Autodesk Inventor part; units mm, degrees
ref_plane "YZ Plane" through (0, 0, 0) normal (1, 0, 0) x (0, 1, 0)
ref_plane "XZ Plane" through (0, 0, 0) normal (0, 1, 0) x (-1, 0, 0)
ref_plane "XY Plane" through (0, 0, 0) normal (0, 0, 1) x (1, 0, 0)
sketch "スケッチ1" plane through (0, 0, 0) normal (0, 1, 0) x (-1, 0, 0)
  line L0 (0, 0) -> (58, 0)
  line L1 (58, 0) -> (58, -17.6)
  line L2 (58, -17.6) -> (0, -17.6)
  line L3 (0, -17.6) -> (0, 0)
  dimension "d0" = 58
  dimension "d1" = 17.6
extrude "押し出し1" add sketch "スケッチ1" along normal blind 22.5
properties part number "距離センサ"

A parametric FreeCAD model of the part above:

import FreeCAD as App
import Part
import Sketcher

V = App.Vector
Q = App.Units.Quantity


def add_polygon(sketch, points):
    """Adds a closed chain of lines whose ends are joined by coincident constraints."""
    first, n = sketch.GeometryCount, len(points)
    for a, b in zip(points, points[1:] + points[:1]):
        sketch.addGeometry(Part.LineSegment(App.Vector(*a, 0), App.Vector(*b, 0)), False)
    for i in range(n):
        sketch.addConstraint(Sketcher.Constraint("Coincident", first + i, 2, first + (i + 1) % n, 1))

doc = App.newDocument("Part")
body = doc.addObject("PartDesign::Body", "Body")

sketch1 = doc.addObject("Sketcher::SketchObject", "Sketch")
body.addObject(sketch1)
sketch1.AttachmentSupport = (doc.XZ_Plane, [""])
sketch1.MapMode = "FlatFace"
add_polygon(sketch1, [(-58, 0), (0, 0), (0, -17.6), (-58, -17.6)])
sketch1.addConstraint(Sketcher.Constraint("Horizontal", 0))
sketch1.addConstraint(Sketcher.Constraint("Vertical", 1))
sketch1.addConstraint(Sketcher.Constraint("Horizontal", 2))
sketch1.addConstraint(Sketcher.Constraint("Vertical", 3))
sketch1.addConstraint(Sketcher.Constraint("Coincident", 0, 2, -1, 1))
sketch1.addConstraint(Sketcher.Constraint("DistanceX", 0, 1, 0, 2, Q("58 mm")))
sketch1.addConstraint(Sketcher.Constraint("DistanceY", 1, 2, 1, 1, Q("17.6 mm")))
pad1 = doc.addObject("PartDesign::Pad", "Pad")
body.addObject(pad1)
pad1.Profile = sketch1
pad1.Length = 22.5
pad1.Reversed = True

doc.recompute()
